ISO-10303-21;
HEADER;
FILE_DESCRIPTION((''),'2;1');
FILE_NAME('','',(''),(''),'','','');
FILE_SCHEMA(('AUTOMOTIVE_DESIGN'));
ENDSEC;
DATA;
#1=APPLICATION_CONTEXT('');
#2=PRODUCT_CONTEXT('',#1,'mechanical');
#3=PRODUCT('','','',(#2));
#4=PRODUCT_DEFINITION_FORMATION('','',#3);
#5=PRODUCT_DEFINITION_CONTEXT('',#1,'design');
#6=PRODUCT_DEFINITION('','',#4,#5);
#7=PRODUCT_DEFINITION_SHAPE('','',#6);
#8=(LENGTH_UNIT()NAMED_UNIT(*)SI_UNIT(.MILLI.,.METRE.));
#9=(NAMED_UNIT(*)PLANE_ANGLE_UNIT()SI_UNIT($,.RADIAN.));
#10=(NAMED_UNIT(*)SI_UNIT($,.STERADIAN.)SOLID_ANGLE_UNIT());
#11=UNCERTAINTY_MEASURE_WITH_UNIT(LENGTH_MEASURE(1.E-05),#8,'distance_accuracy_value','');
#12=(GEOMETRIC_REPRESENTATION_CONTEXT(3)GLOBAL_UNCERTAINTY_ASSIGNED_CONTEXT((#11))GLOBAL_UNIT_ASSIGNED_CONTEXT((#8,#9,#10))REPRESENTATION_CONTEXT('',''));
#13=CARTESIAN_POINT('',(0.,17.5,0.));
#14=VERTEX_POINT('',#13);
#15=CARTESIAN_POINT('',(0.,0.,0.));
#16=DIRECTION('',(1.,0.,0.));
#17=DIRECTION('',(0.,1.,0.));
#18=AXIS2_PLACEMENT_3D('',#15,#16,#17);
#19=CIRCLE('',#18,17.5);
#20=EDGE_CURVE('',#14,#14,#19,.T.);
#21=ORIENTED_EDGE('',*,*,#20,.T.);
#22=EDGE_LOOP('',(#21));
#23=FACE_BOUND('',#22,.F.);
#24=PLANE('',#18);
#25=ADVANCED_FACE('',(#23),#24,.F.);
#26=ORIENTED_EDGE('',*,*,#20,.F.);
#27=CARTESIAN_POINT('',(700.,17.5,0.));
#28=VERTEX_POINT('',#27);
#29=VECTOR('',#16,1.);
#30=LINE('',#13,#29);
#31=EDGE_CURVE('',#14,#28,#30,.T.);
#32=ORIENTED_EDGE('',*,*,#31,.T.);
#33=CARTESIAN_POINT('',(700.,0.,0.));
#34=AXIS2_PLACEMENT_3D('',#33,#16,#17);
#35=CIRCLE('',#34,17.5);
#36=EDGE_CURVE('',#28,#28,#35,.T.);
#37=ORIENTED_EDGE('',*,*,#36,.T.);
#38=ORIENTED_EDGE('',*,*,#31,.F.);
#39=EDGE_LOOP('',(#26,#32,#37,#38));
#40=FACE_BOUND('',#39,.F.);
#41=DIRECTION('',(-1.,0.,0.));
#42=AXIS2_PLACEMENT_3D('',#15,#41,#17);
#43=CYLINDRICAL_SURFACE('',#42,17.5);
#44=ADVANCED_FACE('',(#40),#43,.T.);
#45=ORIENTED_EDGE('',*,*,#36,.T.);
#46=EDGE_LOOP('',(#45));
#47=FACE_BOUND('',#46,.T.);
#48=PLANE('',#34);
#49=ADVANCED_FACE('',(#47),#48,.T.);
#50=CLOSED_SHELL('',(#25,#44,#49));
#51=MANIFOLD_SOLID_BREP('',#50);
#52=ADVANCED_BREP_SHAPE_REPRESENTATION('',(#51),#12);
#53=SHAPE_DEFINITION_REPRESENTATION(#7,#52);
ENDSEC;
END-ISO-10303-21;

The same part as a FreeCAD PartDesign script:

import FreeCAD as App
import Part
import Sketcher
Q = App.Units.Quantity

doc = App.newDocument("Part")
body = doc.addObject("PartDesign::Body", "Body")

# Sketch on YZ plane
sketch1 = doc.addObject("Sketcher::SketchObject", "Sketch")
body.addObject(sketch1)
sketch1.AttachmentSupport = (doc.YZ_Plane, [""])
sketch1.MapMode = "FlatFace"
sketch1.addGeometry(Part.Circle(App.Vector(0, 0, 0), App.Vector(0, 0, 1), 18), False)
sketch1.addConstraint([
    Sketcher.Constraint("Coincident", 0, 3, -1, 1),
    Sketcher.Constraint("Diameter", 0, Q("35 mm")),
])
pad1 = doc.addObject("PartDesign::Pad", "Pad")
body.addObject(pad1)
pad1.Profile = sketch1
pad1.Length = 700

doc.recompute()
